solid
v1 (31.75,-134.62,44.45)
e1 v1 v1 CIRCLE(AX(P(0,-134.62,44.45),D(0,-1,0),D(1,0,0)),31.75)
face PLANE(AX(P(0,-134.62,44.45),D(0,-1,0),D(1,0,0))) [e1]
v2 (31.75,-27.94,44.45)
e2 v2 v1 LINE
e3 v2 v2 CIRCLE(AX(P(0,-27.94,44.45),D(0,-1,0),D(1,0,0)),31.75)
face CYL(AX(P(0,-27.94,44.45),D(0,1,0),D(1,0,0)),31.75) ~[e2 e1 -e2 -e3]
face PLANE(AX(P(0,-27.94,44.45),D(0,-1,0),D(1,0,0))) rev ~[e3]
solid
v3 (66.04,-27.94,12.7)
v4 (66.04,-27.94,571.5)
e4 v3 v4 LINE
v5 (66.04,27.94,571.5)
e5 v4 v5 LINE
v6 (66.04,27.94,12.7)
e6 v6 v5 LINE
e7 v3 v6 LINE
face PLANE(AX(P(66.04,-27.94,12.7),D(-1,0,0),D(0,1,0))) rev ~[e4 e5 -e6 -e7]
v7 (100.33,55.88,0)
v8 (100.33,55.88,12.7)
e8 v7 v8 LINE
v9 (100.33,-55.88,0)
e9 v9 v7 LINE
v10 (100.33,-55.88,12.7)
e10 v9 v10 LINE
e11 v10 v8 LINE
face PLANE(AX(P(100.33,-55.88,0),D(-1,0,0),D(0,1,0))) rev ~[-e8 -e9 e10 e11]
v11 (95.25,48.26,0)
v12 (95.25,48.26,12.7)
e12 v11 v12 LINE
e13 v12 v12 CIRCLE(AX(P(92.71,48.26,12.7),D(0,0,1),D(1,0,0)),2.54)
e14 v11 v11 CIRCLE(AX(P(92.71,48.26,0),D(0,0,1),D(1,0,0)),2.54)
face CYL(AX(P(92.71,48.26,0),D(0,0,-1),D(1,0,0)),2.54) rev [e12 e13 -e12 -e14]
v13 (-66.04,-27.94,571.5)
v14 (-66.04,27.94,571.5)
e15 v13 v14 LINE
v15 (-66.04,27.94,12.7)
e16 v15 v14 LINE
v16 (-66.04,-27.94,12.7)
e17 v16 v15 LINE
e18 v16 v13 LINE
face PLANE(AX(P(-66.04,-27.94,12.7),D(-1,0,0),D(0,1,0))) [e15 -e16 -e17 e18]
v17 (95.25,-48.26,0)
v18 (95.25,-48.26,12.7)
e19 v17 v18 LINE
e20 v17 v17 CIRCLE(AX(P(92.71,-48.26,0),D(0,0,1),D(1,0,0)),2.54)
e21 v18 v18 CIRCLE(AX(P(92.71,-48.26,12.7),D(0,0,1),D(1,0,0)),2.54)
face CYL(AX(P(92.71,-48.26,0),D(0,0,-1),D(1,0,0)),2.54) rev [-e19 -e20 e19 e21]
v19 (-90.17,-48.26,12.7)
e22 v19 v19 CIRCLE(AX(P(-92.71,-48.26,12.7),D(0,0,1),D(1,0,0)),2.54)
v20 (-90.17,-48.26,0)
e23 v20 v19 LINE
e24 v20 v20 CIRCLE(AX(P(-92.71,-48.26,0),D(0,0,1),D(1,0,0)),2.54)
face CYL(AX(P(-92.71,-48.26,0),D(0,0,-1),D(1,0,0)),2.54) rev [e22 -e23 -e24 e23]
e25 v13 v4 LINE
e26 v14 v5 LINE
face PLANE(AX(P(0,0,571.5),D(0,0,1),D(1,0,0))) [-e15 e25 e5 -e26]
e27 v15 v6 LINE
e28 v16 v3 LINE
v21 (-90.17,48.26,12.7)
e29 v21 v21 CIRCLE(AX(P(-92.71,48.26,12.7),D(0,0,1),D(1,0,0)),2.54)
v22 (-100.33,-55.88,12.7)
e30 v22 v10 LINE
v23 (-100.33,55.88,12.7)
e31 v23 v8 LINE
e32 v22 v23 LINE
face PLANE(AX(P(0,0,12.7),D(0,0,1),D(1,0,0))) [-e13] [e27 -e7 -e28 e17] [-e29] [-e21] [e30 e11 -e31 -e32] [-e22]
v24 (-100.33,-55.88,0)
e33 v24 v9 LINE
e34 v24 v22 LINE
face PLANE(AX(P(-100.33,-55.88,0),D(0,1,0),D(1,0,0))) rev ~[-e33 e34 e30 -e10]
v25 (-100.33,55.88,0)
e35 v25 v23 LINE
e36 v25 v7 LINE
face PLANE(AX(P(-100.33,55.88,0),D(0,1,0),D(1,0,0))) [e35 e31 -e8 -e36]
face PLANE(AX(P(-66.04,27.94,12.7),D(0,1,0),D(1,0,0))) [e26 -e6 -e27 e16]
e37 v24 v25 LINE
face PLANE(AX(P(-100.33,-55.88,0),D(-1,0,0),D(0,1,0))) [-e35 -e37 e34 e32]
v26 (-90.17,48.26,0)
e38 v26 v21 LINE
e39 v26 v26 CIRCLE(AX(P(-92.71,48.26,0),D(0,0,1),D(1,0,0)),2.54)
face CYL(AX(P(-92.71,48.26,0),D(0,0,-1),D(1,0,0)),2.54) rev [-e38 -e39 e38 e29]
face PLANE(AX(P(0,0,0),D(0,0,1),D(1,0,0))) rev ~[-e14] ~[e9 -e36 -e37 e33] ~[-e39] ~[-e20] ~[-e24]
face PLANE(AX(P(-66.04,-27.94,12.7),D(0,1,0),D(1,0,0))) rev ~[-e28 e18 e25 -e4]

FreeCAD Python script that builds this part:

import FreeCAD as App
import Part
import Sketcher
from FreeCAD import Vector
Q = App.Units.Quantity


def add_polygon(sketch, points):
    """Adds a closed chain of lines whose ends are joined by coincident constraints."""
    first, n = sketch.GeometryCount, len(points)
    for a, b in zip(points, points[1:] + points[:1]):
        sketch.addGeometry(Part.LineSegment(App.Vector(*a, 0), App.Vector(*b, 0)), False)
    for i in range(n):
        sketch.addConstraint(Sketcher.Constraint("Coincident", first + i, 2, first + (i + 1) % n, 1))

doc = App.newDocument("Part")
body = doc.addObject("PartDesign::Body", "Body")

# Sketch on XY plane
sketch1 = body.newObject("Sketcher::SketchObject", "Sketch")
sketch1.AttachmentSupport = (doc.getObject("XY_Plane"), [""])
sketch1.MapMode = "FlatFace"
add_polygon(sketch1, [(-100.3, 55.9), (-100.3, -55.9), (100.3, -55.9), (100.3, 55.9)])  # lines 0-3
sketch1.addGeometry(Part.Circle(Vector(-92.7, -48.3, 0), Vector(0, 0, 1), 2.5), False)  # 4
sketch1.addGeometry(Part.Circle(Vector(92.7, -48.3, 0), Vector(0, 0, 1), 2.5), False)  # 5
sketch1.addGeometry(Part.Circle(Vector(-92.7, 48.3, 0), Vector(0, 0, 1), 2.5), False)  # 6
sketch1.addGeometry(Part.Circle(Vector(92.7, 48.3, 0), Vector(0, 0, 1), 2.5), False)  # 7
sketch1.addConstraint(Sketcher.Constraint("Vertical", 0))
sketch1.addConstraint(Sketcher.Constraint("Horizontal", 1))
sketch1.addConstraint(Sketcher.Constraint("Vertical", 2))
sketch1.addConstraint(Sketcher.Constraint("Horizontal", 3))
sketch1.addConstraint(Sketcher.Constraint("Equal", 4, 5))
sketch1.addConstraint(Sketcher.Constraint("Equal", 5, 6))
sketch1.addConstraint(Sketcher.Constraint("Equal", 6, 7))
sketch1.addConstraint(Sketcher.Constraint("Symmetric", 5, 3, 6, 3, -1, 1))
sketch1.addConstraint(Sketcher.Constraint("Symmetric", 4, 3, 7, 3, -1, 1))
sketch1.addConstraint(Sketcher.Constraint("Symmetric", 0, 2, 2, 2, -1, 1))
sketch1.addConstraint(Sketcher.Constraint("Symmetric", 4, 3, 5, 3, -2))
sketch1.addConstraint(Sketcher.Constraint("Diameter", 4, Q("0.2 in")))
sketch1.addConstraint(Sketcher.Constraint("DistanceX", 1, 1, 1, 2, Q("7.9 in")))
sketch1.addConstraint(Sketcher.Constraint("DistanceY", 0, 2, 0, 1, Q("4.4 in")))
sketch1.addConstraint(Sketcher.Constraint("DistanceY", 4, 3, -1, 1, Q("1.9 in")))
sketch1.addConstraint(Sketcher.Constraint("DistanceX", 4, 3, 5, 3, Q("7.3 in")))
pad1 = body.newObject("PartDesign::Pad", "Pad")
pad1.Profile = sketch1
pad1.Length = Q("0.5 in")

# Sketch on XY plane
sketch2 = body.newObject("Sketcher::SketchObject", "Sketch001")
sketch2.AttachmentSupport = (doc.getObject("XY_Plane"), [""])
sketch2.MapMode = "FlatFace"
sketch2.AttachmentOffset = App.Placement(Vector(0, 0, 0.5 * 25.4), App.Rotation())
add_polygon(sketch2, [(-66, 28), (-66, -28), (66, -28), (66, 28)])  # lines 0-3
sketch2.addConstraint(Sketcher.Constraint("Vertical", 0))
sketch2.addConstraint(Sketcher.Constraint("Horizontal", 1))
sketch2.addConstraint(Sketcher.Constraint("Vertical", 2))
sketch2.addConstraint(Sketcher.Constraint("Horizontal", 3))
sketch2.addConstraint(Sketcher.Constraint("Symmetric", 0, 2, 2, 2, -1, 1))
sketch2.addConstraint(Sketcher.Constraint("DistanceX", 1, 1, 1, 2, Q("5.2 in")))
sketch2.addConstraint(Sketcher.Constraint("DistanceY", 0, 2, 0, 1, Q("2.2 in")))
pad2 = body.newObject("PartDesign::Pad", "Pad001")
pad2.Profile = sketch2
pad2.Length = Q("22 in")
body2 = doc.addObject("PartDesign::Body", "Body001")

# Sketch on XZ plane
sketch3 = body2.newObject("Sketcher::SketchObject", "Sketch002")
sketch3.AttachmentSupport = (doc.getObject("XZ_Plane001"), [""])
sketch3.MapMode = "FlatFace"
sketch3.AttachmentOffset = App.Placement(Vector(0, 0, 1.1 * 25.4), App.Rotation())
sketch3.addGeometry(Part.Circle(Vector(0, 44, 0), Vector(0, 0, 1), 32), False)
sketch3.addConstraint(Sketcher.Constraint("PointOnObject", 0, 3, -2))
sketch3.addConstraint(Sketcher.Constraint("Diameter", 0, Q("2.5 in")))
sketch3.addConstraint(Sketcher.Constraint("DistanceY", -1, 1, 0, 3, Q("1.75 in")))
pad3 = body2.newObject("PartDesign::Pad", "Pad002")
pad3.Profile = sketch3
pad3.Length = Q("4.2 in")

doc.recompute()
